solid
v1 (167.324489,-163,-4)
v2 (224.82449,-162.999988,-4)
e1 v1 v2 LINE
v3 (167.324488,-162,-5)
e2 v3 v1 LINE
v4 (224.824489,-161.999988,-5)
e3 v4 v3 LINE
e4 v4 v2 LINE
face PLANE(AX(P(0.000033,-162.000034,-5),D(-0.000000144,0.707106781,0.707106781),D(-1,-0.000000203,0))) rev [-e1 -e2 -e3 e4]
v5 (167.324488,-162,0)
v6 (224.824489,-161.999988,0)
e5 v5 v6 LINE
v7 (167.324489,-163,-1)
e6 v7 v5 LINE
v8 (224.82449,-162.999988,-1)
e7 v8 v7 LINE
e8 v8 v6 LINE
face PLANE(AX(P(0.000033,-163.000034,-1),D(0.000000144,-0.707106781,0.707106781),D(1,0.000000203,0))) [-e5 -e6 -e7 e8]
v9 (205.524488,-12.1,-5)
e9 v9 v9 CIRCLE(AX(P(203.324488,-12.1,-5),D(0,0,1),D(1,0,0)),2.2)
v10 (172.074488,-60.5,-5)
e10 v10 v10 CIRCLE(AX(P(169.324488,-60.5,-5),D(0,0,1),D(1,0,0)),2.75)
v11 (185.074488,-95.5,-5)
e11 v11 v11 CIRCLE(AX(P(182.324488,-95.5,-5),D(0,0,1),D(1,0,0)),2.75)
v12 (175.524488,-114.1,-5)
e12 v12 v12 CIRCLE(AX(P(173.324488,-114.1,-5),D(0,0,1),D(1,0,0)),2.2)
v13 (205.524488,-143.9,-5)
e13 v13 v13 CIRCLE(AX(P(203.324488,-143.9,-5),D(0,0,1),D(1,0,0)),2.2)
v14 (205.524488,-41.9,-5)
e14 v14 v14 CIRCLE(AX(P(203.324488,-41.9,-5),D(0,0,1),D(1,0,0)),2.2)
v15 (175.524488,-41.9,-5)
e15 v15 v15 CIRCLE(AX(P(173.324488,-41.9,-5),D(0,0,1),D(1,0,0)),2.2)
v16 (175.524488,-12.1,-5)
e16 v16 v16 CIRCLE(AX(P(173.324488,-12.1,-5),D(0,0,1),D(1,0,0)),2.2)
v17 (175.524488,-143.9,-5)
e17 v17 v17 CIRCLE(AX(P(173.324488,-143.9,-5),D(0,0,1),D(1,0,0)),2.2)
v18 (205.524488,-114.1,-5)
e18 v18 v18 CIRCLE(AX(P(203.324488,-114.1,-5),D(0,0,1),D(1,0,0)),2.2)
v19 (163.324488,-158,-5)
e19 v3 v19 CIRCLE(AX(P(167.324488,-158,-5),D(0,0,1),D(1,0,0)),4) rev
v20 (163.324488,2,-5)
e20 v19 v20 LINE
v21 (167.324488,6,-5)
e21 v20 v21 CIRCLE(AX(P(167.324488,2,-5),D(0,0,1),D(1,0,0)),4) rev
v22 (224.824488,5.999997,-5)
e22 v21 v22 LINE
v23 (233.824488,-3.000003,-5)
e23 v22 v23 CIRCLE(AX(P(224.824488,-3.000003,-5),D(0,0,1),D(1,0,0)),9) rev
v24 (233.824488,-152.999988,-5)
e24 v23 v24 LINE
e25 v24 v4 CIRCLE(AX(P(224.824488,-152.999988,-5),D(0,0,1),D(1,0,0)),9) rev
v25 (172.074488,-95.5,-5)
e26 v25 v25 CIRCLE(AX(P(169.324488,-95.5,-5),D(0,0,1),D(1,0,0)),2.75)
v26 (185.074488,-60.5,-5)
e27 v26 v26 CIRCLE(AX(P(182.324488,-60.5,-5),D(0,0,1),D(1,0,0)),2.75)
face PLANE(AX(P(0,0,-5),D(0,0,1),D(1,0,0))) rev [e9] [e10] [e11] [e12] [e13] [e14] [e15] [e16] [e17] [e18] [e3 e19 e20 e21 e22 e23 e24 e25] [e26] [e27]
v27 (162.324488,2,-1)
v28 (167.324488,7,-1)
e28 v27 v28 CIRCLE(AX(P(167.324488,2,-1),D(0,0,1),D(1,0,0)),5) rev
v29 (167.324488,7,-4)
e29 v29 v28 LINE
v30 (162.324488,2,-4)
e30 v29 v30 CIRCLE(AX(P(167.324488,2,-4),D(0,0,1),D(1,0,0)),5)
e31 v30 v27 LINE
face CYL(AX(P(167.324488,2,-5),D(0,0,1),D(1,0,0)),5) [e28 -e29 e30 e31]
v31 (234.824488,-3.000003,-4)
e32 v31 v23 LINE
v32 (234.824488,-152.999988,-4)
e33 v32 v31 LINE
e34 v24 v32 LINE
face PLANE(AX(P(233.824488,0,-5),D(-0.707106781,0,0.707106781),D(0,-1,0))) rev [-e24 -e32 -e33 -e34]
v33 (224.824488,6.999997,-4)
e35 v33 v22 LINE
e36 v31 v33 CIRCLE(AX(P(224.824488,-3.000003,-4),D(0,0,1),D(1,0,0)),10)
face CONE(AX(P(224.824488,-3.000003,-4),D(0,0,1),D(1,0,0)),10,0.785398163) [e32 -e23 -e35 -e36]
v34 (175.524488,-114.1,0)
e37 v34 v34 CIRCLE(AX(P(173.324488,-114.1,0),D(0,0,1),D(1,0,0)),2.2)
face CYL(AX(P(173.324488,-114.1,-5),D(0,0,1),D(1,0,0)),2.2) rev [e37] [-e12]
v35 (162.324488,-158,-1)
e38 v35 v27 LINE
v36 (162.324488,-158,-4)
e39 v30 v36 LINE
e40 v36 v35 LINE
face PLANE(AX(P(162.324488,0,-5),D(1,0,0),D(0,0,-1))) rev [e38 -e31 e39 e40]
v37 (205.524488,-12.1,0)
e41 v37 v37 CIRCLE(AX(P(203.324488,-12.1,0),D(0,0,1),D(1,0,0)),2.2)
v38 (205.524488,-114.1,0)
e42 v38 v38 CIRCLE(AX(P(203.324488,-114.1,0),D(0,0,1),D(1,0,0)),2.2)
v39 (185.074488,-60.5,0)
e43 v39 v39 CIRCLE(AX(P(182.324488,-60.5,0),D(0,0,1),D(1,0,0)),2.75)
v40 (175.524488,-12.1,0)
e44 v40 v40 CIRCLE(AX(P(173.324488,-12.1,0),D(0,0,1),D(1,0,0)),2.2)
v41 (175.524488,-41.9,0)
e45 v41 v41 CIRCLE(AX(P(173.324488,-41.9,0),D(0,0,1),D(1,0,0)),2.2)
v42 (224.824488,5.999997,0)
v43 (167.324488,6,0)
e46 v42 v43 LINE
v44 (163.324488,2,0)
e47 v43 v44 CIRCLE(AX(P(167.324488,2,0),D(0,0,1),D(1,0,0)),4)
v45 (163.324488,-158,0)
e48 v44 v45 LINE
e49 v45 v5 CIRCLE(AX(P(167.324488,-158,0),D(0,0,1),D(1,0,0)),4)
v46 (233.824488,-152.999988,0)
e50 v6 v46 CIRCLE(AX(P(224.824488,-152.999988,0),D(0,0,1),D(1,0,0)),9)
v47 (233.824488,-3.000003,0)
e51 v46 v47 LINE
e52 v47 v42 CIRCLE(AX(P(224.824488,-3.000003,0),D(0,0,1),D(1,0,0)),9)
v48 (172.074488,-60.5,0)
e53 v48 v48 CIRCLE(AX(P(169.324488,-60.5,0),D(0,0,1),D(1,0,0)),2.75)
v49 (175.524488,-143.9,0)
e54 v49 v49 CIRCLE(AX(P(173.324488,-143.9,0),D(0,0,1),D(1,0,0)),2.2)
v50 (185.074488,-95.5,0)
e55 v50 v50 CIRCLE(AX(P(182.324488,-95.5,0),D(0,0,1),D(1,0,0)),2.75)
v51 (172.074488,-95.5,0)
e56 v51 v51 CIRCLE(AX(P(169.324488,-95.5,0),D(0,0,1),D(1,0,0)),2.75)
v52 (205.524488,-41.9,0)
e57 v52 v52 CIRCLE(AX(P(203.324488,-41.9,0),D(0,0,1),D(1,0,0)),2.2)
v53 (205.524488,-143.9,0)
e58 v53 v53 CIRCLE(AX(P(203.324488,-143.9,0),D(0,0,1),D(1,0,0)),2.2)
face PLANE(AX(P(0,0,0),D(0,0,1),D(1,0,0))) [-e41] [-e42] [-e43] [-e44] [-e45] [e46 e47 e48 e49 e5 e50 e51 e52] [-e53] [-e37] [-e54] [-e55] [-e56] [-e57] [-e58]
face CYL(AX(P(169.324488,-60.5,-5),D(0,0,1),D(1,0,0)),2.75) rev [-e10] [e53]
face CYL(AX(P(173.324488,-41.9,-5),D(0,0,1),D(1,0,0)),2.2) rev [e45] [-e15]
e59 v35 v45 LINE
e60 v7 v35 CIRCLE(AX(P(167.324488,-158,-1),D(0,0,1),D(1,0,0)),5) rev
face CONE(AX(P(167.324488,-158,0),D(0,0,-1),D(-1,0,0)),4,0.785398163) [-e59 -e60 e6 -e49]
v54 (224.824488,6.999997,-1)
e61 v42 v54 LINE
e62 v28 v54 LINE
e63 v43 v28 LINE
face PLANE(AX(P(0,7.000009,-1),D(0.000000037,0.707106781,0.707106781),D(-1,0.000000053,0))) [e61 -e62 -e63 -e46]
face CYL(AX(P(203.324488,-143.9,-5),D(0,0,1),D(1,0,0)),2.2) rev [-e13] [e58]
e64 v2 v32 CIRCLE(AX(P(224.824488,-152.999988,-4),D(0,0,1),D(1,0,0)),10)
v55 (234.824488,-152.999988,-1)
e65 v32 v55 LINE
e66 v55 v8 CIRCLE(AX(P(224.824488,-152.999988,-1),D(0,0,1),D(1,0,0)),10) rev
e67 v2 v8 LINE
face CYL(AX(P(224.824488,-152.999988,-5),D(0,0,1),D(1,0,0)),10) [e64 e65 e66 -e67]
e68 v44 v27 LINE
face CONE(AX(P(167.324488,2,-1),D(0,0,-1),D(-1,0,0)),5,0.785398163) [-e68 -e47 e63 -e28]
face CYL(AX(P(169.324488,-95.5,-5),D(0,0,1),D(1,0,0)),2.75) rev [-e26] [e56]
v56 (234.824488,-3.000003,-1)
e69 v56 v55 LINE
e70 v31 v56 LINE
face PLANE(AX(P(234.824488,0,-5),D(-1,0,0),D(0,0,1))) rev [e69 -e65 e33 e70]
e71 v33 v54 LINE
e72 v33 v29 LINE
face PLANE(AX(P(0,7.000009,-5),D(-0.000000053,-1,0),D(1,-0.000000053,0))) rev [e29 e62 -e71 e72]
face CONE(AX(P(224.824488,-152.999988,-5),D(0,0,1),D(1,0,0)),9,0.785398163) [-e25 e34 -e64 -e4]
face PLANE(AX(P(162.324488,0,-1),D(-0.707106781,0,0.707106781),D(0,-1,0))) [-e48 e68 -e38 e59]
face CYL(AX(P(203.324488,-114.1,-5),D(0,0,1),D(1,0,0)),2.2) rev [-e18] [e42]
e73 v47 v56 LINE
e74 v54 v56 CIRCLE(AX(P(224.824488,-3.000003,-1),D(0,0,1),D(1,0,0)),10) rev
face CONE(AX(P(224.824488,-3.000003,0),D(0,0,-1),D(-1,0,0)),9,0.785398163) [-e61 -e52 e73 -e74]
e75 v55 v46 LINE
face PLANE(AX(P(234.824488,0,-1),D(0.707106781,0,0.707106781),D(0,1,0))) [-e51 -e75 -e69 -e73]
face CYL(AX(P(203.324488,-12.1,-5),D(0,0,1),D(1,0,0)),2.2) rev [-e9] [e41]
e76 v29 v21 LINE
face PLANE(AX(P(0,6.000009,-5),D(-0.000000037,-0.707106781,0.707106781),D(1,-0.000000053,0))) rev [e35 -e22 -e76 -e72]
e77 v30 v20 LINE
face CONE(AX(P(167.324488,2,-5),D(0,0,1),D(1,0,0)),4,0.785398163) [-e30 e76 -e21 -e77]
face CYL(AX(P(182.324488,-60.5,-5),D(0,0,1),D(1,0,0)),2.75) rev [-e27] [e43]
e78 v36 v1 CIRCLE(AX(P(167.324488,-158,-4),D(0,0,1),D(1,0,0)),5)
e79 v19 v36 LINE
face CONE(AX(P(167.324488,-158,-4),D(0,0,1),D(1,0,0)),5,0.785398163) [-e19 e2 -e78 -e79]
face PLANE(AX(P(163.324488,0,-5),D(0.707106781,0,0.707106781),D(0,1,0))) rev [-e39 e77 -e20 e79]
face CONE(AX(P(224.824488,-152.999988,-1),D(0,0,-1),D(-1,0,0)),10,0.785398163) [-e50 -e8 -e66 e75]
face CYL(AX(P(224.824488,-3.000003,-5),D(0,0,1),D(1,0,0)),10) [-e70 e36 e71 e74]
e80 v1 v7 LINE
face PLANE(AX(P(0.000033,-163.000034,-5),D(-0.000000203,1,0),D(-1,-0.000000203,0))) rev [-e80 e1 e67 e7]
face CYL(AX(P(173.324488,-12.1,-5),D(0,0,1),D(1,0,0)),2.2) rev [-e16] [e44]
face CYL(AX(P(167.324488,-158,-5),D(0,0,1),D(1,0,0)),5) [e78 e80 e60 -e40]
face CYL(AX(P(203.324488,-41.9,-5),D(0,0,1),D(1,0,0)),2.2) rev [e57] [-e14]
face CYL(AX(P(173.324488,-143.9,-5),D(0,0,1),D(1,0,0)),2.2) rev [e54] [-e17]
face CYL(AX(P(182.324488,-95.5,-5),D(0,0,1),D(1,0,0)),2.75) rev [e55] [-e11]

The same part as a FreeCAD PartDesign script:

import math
import FreeCAD as App
import Part
import Sketcher

V = App.Vector
Q = App.Units.Quantity


def edges_at(feature, points):
    """Names of the edges that pass closest to the given points."""
    edges = feature.Shape.Edges
    near = lambda p: min(range(len(edges)), key=lambda i: edges[i].distToShape(Part.Vertex(*p))[0])
    return sorted({f"Edge{near(p) + 1}" for p in points})

doc = App.newDocument("Part")
body = doc.addObject("PartDesign::Body", "Body")

# Sketch on XY plane
sketch1 = body.newObject("Sketcher::SketchObject", "Sketch")
sketch1.AttachmentSupport = (doc.getObject("XY_Plane"), [""])
sketch1.MapMode = "FlatFace"
sketch1.addGeometry(Part.LineSegment(V(234.824488, -152.999988, 0), V(234.824488, -3.000003, 0)), False)
sketch1.addGeometry(Part.ArcOfCircle(Part.Circle(V(224.824488, -3.000003, 0), V(0, 0, 1), 10), math.radians(0), math.radians(89.999997)), False)
sketch1.addGeometry(Part.LineSegment(V(224.824488, 6.999997, 0), V(167.324488, 7, 0)), False)
sketch1.addGeometry(Part.ArcOfCircle(Part.Circle(V(167.324488, 2, 0), V(0, 0, 1), 5), math.radians(89.999997), math.radians(180)), False)
sketch1.addGeometry(Part.LineSegment(V(162.324488, 2, 0), V(162.324488, -158, 0)), False)
sketch1.addGeometry(Part.ArcOfCircle(Part.Circle(V(167.324488, -158, 0), V(0, 0, 1), 5), math.radians(180), math.radians(270.000012)), False)
sketch1.addGeometry(Part.LineSegment(V(167.324489, -163, 0), V(224.82449, -162.999988, 0)), False)
sketch1.addGeometry(Part.ArcOfCircle(Part.Circle(V(224.824488, -152.999988, 0), V(0, 0, 1), 10), math.radians(-89.999988), math.radians(0)), False)
sketch1.addConstraint(Sketcher.Constraint("Tangent", 0, 2, 1, 1))
sketch1.addConstraint(Sketcher.Constraint("Tangent", 1, 2, 2, 1))
sketch1.addConstraint(Sketcher.Constraint("Tangent", 2, 2, 3, 1))
sketch1.addConstraint(Sketcher.Constraint("Tangent", 3, 2, 4, 1))
sketch1.addConstraint(Sketcher.Constraint("Tangent", 4, 2, 5, 1))
sketch1.addConstraint(Sketcher.Constraint("Tangent", 5, 2, 6, 1))
sketch1.addConstraint(Sketcher.Constraint("Tangent", 6, 2, 7, 1))
sketch1.addConstraint(Sketcher.Constraint("Tangent", 7, 2, 0, 1))
sketch1.addConstraint(Sketcher.Constraint("Vertical", 0))
sketch1.addConstraint(Sketcher.Constraint("Vertical", 4))
sketch1.addConstraint(Sketcher.Constraint("Equal", 3, 5))
sketch1.addConstraint(Sketcher.Constraint("Equal", 1, 7))
sketch1.addConstraint(Sketcher.Constraint("Parallel", 2, 6))
sketch1.addConstraint(Sketcher.Constraint("Vertical", 7, 3, 1, 2))
sketch1.addConstraint(Sketcher.Constraint("Radius", 1, Q("10 mm")))
sketch1.addConstraint(Sketcher.Constraint("Radius", 3, Q("5 mm")))
sketch1.addConstraint(Sketcher.Constraint("DistanceY", 4, 2, 4, 1, Q("160 mm")))
sketch1.addConstraint(Sketcher.Constraint("DistanceY", -1, 1, 3, 3, Q("2 mm")))
sketch1.addConstraint(Sketcher.Constraint("Distance", 2, Q("57.5 mm")))
sketch1.addConstraint(Sketcher.Constraint("DistanceX", -1, 1, 1, 2, Q("224.824488 mm")))
pad1 = body.newObject("PartDesign::Pad", "Pad")
pad1.Profile = sketch1
pad1.Length = 5
pad1.Reversed = True

# Sketch on XY plane
sketch2 = body.newObject("Sketcher::SketchObject", "Sketch001")
sketch2.AttachmentSupport = (doc.getObject("XY_Plane"), [""])
sketch2.MapMode = "FlatFace"
sketch2.addGeometry(Part.Circle(V(203.324488, -12.1, 0), V(0, 0, 1), 2.2), False)
sketch2.addGeometry(Part.Circle(V(173.324488, -12.1, 0), V(0, 0, 1), 2.2), False)
sketch2.addGeometry(Part.Circle(V(173.324488, -41.9, 0), V(0, 0, 1), 2.2), False)
sketch2.addGeometry(Part.Circle(V(203.324488, -41.9, 0), V(0, 0, 1), 2.2), False)
sketch2.addGeometry(Part.Circle(V(173.324488, -143.9, 0), V(0, 0, 1), 2.2), False)
sketch2.addGeometry(Part.Circle(V(203.324488, -143.9, 0), V(0, 0, 1), 2.2), False)
sketch2.addGeometry(Part.Circle(V(173.324488, -114.1, 0), V(0, 0, 1), 2.2), False)
sketch2.addGeometry(Part.Circle(V(203.324488, -114.1, 0), V(0, 0, 1), 2.2), False)
sketch2.addGeometry(Part.Circle(V(169.324488, -60.5, 0), V(0, 0, 1), 2.75), False)
sketch2.addGeometry(Part.Circle(V(169.324488, -95.5, 0), V(0, 0, 1), 2.75), False)
sketch2.addGeometry(Part.Circle(V(182.324488, -60.5, 0), V(0, 0, 1), 2.75), False)
sketch2.addGeometry(Part.Circle(V(182.324488, -95.5, 0), V(0, 0, 1), 2.75), False)
sketch2.addConstraint(Sketcher.Constraint("Equal", 0, 1))
sketch2.addConstraint(Sketcher.Constraint("Equal", 1, 2))
sketch2.addConstraint(Sketcher.Constraint("Equal", 2, 3))
sketch2.addConstraint(Sketcher.Constraint("Equal", 3, 4))
sketch2.addConstraint(Sketcher.Constraint("Equal", 4, 5))
sketch2.addConstraint(Sketcher.Constraint("Equal", 5, 6))
sketch2.addConstraint(Sketcher.Constraint("Equal", 6, 7))
sketch2.addConstraint(Sketcher.Constraint("Equal", 8, 9))
sketch2.addConstraint(Sketcher.Constraint("Equal", 9, 10))
sketch2.addConstraint(Sketcher.Constraint("Equal", 10, 11))
sketch2.addConstraint(Sketcher.Constraint("Horizontal", 0, 3, 1, 3))
sketch2.addConstraint(Sketcher.Constraint("Horizontal", 2, 3, 3, 3))
sketch2.addConstraint(Sketcher.Constraint("Horizontal", 4, 3, 5, 3))
sketch2.addConstraint(Sketcher.Constraint("Horizontal", 6, 3, 7, 3))
sketch2.addConstraint(Sketcher.Constraint("Horizontal", 8, 3, 10, 3))
sketch2.addConstraint(Sketcher.Constraint("Horizontal", 9, 3, 11, 3))
sketch2.addConstraint(Sketcher.Constraint("Vertical", 1, 3, 2, 3))
sketch2.addConstraint(Sketcher.Constraint("Vertical", 0, 3, 3, 3))
sketch2.addConstraint(Sketcher.Constraint("Vertical", 2, 3, 4, 3))
sketch2.addConstraint(Sketcher.Constraint("Vertical", 3, 3, 5, 3))
sketch2.addConstraint(Sketcher.Constraint("Vertical", 4, 3, 6, 3))
sketch2.addConstraint(Sketcher.Constraint("Vertical", 5, 3, 7, 3))
sketch2.addConstraint(Sketcher.Constraint("Vertical", 8, 3, 9, 3))
sketch2.addConstraint(Sketcher.Constraint("Vertical", 10, 3, 11, 3))
sketch2.addConstraint(Sketcher.Constraint("Diameter", 0, Q("4.4 mm")))
sketch2.addConstraint(Sketcher.Constraint("Diameter", 8, Q("5.5 mm")))
sketch2.addConstraint(Sketcher.Constraint("DistanceX", 1, 3, 0, 3, Q("30 mm")))
sketch2.addConstraint(Sketcher.Constraint("DistanceY", 4, 3, 2, 3, Q("102 mm")))
sketch2.addConstraint(Sketcher.Constraint("DistanceY", 6, 3, 1, 3, Q("102 mm")))
sketch2.addConstraint(Sketcher.Constraint("DistanceX", 8, 3, 2, 3, Q("4 mm")))
sketch2.addConstraint(Sketcher.Constraint("DistanceY", 9, 3, 8, 3, Q("35 mm")))
sketch2.addConstraint(Sketcher.Constraint("DistanceX", 8, 3, 10, 3, Q("13 mm")))
sketch2.addConstraint(Sketcher.Constraint("DistanceY", 0, 3, -1, 1, Q("12.1 mm")))
sketch2.addConstraint(Sketcher.Constraint("DistanceY", 2, 3, -1, 1, Q("41.9 mm")))
sketch2.addConstraint(Sketcher.Constraint("DistanceY", 8, 3, -1, 1, Q("60.5 mm")))
sketch2.addConstraint(Sketcher.Constraint("DistanceX", -1, 1, 0, 3, Q("203.324488 mm")))
pocket1 = body.newObject("PartDesign::Pocket", "Pocket")
pocket1.Profile = sketch2
pocket1.Length = 5
doc.recompute()

chamfer = body.newObject("PartDesign::Chamfer", "Chamfer")
chamfer.Base = (pocket1, edges_at(pocket1, [
    (196.074, -163, 0),
    (163.789, -161.536, 0),
    (231.896, 4.071, -5),
    (162.324, -78, 0),
    (163.789, 5.536, 0),
    (196.074, 7, 0),
    (231.896, 4.071, 0),
    (234.824, -78, 0),
    (196.074, 7, -5),
    (163.789, 5.536, -5),
    (162.324, -78, -5),
    (163.789, -161.536, -5),
    (196.074, -163, -5),
    (231.896, -160.071, -5),
    (234.824, -78, -5),
    (231.896, -160.071, 0),
]))
chamfer.Size = 1

doc.recompute()
